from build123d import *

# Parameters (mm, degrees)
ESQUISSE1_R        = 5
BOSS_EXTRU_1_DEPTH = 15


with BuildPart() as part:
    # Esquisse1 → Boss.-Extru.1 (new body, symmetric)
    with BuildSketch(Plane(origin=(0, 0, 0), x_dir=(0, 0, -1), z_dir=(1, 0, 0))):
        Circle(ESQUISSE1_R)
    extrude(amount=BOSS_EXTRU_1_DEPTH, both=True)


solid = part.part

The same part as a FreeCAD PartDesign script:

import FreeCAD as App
import Part
import Sketcher

doc = App.newDocument("Part")
body = doc.addObject("PartDesign::Body", "Body")

sketch1 = body.newObject("Sketcher::SketchObject", "Sketch")
sketch1.AttachmentSupport = (doc.getObject("YZ_Plane"), [""])
sketch1.MapMode = "FlatFace"
sketch1.addGeometry(Part.Circle(App.Vector(0, 0, 0), App.Vector(0, 0, 1), 5), False)
sketch1.addConstraint([
    Sketcher.Constraint("Coincident", 0, 3, -1, 1),
    Sketcher.Constraint("Diameter", 0, 10.0),
])
pad1 = body.newObject("PartDesign::Pad", "Pad")
pad1.Profile = sketch1
pad1.Length = 30
pad1.Midplane = True

doc.recompute()
